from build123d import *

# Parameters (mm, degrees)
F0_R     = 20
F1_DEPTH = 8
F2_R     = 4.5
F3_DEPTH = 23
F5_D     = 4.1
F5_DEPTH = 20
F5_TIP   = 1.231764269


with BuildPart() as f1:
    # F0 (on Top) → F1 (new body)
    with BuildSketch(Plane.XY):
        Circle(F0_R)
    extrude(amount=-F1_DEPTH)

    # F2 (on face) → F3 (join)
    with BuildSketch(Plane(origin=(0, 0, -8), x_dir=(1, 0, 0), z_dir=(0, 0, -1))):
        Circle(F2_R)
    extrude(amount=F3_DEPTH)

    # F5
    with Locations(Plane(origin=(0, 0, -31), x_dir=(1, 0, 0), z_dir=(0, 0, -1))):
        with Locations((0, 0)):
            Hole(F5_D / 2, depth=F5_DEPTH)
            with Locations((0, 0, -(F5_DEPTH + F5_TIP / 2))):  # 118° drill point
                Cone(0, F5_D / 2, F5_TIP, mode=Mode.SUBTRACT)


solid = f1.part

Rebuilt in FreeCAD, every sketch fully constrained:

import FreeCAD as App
import Part
import Sketcher

V = App.Vector
Q = App.Units.Quantity

doc = App.newDocument("Part")
body = doc.addObject("PartDesign::Body", "Body")

sketch1 = body.newObject("Sketcher::SketchObject", "Sketch")
sketch1.AttachmentSupport = (doc.getObject("XY_Plane"), [""])
sketch1.MapMode = "FlatFace"
sketch1.addGeometry(Part.Circle(V(0, 0, 0), V(0, 0, 1), 20), False)
sketch1.addConstraint([
    Sketcher.Constraint("Coincident", 0, 3, -1, 1),
    Sketcher.Constraint("Diameter", 0, Q("40 mm")),
])
pad1 = body.newObject("PartDesign::Pad", "Pad")
pad1.Profile = sketch1
pad1.Length = 8
pad1.Reversed = True

sketch2 = body.newObject("Sketcher::SketchObject", "Sketch001")
sketch2.AttachmentSupport = (doc.getObject("XY_Plane"), [""])
sketch2.MapMode = "FlatFace"
sketch2.AttachmentOffset = App.Placement(V(0, 0, -8), App.Rotation())
sketch2.addGeometry(Part.Circle(V(0, 0, 0), V(0, 0, 1), 4.5), False)
sketch2.addConstraint([
    Sketcher.Constraint("Coincident", 0, 3, -1, 1),
    Sketcher.Constraint("Diameter", 0, Q("9 mm")),
])
pad2 = body.newObject("PartDesign::Pad", "Pad001")
pad2.Profile = sketch2
pad2.Length = 23
pad2.Reversed = True

sketch3 = body.newObject("Sketcher::SketchObject", "Sketch002")
sketch3.AttachmentSupport = (doc.getObject("XY_Plane"), [""])
sketch3.MapMode = "FlatFace"
sketch3.AttachmentOffset = App.Placement(V(0, 0, -31), App.Rotation())
sketch3.addGeometry(Part.Circle(V(0, 0, 0), V(0, 0, 1), 2), False)
sketch3.addConstraint([
    Sketcher.Constraint("Coincident", 0, 3, -1, 1),
    Sketcher.Constraint("Diameter", 0, Q("4.1 mm")),
])
doc.recompute()
hole = body.newObject("PartDesign::Hole", "Hole")
hole.Profile = sketch3
hole.ThreadType = "None"
hole.Diameter = 4.1
hole.DepthType = "Dimension"
hole.Depth = 20
hole.DrillPoint = "Angled"
hole.DrillPointAngle = 118
hole.Reversed = True

doc.recompute()
